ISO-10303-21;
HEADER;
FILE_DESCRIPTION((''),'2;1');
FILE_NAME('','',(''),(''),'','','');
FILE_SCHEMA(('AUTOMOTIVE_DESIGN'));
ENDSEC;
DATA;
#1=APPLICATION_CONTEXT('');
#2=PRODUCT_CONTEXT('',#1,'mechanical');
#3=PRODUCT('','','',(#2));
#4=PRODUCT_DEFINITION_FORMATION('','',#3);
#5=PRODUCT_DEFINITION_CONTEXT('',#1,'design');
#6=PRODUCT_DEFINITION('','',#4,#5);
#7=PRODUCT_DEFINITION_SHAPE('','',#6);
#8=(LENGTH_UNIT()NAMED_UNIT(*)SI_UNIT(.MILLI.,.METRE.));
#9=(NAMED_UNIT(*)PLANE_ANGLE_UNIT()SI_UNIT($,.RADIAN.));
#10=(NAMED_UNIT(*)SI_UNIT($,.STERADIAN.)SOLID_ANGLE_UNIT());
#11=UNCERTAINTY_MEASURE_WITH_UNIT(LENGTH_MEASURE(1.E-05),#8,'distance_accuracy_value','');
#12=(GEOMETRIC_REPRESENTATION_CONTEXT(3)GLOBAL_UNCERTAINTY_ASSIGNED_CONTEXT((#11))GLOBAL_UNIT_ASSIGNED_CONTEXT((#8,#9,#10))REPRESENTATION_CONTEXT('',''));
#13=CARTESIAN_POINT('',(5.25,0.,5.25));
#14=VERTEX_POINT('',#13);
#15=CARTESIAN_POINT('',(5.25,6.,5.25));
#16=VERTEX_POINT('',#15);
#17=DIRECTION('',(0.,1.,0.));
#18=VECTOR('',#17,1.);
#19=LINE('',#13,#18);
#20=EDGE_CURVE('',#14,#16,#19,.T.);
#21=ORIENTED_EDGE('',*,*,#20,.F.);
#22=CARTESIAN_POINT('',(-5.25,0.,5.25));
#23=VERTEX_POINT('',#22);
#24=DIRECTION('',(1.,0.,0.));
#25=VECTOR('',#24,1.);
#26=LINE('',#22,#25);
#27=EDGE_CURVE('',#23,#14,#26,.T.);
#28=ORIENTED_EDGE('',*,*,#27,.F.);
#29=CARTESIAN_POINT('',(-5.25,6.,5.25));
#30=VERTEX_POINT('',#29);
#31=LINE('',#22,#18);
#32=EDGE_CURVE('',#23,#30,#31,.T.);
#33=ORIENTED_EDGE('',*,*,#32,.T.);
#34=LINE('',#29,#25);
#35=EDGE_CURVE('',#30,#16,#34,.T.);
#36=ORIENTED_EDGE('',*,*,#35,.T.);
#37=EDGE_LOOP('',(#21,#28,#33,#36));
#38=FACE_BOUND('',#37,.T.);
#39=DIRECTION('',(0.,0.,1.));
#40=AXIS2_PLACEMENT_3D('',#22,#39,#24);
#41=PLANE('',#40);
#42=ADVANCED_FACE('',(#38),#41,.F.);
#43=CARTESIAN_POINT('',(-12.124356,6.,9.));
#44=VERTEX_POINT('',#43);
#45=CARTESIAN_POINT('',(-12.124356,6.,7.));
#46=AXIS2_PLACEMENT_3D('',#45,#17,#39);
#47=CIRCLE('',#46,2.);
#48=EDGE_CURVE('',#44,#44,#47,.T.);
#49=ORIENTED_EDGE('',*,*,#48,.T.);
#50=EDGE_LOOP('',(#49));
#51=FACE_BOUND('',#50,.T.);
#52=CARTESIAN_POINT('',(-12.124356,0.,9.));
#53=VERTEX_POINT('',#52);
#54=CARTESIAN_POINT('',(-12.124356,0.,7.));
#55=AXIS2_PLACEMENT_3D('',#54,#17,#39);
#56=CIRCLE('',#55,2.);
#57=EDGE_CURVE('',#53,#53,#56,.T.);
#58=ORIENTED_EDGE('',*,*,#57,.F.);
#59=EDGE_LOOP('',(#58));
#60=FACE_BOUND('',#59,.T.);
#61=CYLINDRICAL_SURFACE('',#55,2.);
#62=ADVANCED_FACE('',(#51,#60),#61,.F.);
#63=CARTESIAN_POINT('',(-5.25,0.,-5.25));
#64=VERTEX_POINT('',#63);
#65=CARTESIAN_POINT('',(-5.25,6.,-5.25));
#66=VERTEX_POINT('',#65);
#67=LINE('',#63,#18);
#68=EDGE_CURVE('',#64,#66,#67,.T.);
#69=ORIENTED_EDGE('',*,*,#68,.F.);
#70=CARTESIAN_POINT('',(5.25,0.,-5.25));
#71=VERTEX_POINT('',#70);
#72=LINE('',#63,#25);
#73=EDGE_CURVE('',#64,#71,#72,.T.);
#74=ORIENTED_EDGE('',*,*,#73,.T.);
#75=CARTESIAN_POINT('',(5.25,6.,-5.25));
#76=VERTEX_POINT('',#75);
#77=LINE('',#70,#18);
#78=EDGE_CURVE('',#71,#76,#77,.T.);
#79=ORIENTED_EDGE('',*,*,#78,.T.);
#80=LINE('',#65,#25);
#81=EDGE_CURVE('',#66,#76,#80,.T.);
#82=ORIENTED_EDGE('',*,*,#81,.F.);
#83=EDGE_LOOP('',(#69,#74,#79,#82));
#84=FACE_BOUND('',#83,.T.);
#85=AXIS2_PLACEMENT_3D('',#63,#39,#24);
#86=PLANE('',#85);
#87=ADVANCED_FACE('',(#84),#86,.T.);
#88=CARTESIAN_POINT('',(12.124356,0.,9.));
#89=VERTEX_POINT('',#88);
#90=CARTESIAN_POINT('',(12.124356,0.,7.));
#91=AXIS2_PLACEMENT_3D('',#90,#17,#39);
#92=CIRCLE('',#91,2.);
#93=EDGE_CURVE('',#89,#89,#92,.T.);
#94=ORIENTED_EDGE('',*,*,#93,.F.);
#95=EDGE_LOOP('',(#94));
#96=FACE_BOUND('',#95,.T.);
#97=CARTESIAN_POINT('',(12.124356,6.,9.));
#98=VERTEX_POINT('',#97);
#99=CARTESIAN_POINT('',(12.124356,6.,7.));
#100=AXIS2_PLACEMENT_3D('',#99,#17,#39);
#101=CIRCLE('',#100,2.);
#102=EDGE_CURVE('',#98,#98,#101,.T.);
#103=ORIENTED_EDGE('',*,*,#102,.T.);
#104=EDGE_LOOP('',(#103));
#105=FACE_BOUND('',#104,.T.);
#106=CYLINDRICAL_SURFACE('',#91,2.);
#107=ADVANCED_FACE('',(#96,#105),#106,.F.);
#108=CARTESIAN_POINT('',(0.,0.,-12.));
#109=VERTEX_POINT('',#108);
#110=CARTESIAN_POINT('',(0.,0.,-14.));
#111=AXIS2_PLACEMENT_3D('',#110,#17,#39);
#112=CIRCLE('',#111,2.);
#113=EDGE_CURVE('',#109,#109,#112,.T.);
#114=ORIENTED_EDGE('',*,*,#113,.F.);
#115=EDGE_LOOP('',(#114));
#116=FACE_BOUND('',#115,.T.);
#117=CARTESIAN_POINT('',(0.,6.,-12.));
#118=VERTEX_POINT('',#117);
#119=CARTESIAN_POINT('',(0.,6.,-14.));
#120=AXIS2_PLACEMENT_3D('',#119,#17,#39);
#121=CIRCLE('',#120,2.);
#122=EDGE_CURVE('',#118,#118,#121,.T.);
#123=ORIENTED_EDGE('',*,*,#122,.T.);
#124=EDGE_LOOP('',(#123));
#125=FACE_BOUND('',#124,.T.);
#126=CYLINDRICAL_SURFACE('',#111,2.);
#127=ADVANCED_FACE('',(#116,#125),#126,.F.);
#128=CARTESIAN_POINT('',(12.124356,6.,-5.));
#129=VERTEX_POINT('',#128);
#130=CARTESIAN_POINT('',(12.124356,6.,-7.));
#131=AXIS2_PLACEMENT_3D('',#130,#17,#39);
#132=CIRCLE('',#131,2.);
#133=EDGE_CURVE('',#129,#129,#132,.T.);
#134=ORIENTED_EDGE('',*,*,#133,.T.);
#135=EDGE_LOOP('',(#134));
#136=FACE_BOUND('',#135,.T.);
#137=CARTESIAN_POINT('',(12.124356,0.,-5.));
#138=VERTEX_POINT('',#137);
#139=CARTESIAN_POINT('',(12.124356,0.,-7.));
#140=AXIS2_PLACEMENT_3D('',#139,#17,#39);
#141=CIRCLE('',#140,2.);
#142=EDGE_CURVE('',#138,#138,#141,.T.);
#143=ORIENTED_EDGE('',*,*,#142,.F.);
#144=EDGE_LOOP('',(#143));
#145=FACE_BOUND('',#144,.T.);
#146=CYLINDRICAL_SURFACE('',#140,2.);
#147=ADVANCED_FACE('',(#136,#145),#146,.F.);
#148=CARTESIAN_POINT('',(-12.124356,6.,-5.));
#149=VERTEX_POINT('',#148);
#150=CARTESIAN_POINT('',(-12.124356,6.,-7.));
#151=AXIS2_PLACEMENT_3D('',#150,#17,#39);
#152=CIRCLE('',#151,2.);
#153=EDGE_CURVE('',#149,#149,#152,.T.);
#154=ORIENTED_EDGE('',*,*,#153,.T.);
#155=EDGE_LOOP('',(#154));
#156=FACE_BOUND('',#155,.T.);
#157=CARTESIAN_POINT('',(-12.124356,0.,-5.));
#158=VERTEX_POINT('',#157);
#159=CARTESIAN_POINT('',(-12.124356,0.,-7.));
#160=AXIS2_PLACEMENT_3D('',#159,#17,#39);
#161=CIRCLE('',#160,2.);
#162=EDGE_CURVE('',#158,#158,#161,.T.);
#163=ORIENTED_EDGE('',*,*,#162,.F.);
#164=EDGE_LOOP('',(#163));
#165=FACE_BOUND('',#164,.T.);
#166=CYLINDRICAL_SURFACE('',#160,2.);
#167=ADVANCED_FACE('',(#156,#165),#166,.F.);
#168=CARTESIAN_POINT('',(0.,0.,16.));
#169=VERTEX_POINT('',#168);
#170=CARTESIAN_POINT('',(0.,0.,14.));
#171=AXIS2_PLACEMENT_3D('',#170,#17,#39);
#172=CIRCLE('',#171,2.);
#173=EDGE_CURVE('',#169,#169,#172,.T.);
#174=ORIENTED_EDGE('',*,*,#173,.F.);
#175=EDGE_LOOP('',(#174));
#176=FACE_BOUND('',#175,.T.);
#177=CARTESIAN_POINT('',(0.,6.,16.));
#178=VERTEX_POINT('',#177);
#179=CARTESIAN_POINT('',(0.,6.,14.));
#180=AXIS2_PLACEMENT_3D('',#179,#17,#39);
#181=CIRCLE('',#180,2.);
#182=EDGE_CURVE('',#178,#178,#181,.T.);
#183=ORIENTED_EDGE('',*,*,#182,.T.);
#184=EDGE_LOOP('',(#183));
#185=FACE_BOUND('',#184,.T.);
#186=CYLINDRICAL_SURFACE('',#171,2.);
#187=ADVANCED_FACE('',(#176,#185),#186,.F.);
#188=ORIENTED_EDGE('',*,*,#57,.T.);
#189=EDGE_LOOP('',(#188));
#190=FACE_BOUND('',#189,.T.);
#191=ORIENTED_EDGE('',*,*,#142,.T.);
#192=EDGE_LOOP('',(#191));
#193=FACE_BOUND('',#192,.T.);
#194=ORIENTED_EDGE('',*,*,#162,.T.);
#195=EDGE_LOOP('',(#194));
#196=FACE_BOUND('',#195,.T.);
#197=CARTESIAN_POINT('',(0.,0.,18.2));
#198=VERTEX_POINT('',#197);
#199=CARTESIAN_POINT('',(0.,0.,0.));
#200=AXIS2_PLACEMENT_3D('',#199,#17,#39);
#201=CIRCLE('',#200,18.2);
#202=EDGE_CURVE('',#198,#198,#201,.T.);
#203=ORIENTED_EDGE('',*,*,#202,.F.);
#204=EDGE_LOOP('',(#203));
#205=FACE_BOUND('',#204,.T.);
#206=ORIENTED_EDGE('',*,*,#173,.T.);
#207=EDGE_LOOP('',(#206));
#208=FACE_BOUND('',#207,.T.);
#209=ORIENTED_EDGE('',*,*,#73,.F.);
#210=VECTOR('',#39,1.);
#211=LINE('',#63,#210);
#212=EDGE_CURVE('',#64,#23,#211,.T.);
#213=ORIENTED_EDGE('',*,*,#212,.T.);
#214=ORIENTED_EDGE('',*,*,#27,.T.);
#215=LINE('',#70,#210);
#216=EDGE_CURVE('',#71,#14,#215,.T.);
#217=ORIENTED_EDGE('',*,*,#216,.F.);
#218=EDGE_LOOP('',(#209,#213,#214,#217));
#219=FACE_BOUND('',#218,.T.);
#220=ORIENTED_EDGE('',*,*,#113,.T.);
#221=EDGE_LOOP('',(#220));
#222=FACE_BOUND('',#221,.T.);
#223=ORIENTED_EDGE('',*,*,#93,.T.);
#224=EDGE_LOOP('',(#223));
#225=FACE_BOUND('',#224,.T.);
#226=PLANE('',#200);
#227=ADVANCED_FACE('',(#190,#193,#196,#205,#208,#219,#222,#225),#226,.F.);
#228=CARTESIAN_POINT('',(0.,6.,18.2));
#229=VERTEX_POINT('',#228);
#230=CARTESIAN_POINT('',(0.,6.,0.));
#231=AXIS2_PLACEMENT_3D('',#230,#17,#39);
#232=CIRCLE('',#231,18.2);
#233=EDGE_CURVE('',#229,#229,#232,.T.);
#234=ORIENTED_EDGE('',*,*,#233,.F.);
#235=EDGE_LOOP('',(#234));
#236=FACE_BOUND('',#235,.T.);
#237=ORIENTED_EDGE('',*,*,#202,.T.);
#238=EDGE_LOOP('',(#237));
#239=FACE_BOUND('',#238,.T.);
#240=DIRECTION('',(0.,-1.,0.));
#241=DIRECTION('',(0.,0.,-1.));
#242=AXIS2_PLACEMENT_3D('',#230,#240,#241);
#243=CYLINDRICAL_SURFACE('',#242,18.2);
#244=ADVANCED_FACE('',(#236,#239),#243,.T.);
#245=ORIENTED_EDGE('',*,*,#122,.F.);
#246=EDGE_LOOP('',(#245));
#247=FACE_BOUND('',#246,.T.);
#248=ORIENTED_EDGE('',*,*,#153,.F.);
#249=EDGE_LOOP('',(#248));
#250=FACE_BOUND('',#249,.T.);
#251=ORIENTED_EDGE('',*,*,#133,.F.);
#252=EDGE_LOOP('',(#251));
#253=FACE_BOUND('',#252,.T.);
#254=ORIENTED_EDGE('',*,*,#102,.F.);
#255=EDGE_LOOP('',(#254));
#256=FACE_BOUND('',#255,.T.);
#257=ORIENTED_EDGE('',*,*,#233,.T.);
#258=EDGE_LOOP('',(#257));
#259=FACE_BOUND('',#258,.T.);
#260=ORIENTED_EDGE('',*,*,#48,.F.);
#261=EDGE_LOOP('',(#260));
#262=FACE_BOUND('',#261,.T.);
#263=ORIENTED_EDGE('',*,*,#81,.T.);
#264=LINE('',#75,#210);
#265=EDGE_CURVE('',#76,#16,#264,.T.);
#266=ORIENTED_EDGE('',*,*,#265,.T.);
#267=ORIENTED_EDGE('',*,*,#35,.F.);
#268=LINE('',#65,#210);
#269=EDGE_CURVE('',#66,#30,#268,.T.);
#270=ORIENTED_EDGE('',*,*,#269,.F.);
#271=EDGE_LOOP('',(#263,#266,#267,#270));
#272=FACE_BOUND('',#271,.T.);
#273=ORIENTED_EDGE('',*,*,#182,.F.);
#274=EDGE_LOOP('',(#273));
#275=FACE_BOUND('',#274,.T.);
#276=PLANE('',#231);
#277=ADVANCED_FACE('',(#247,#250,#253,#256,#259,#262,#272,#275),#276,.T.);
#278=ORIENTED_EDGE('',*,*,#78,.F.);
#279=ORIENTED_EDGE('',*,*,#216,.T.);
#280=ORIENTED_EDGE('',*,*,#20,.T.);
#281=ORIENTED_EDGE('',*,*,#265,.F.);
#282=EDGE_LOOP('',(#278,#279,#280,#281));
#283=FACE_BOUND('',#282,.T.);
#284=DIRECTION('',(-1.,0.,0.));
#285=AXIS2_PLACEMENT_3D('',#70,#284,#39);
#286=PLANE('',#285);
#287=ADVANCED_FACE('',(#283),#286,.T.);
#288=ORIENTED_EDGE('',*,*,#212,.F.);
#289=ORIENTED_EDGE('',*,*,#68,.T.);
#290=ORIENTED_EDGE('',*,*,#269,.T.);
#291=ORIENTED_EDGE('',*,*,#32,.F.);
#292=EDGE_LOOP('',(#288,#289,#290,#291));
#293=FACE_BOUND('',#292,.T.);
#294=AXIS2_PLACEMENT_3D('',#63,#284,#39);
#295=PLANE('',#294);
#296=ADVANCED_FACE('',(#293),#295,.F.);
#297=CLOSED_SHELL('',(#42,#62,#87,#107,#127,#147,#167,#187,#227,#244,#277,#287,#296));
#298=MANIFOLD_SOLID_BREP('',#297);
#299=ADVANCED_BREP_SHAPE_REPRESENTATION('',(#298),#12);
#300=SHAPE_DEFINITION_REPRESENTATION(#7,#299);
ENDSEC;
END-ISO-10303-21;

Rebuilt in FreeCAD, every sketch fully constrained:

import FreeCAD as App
import Part
import Sketcher

V = App.Vector
Q = App.Units.Quantity


def add_polygon(sketch, points):
    """Adds a closed chain of lines whose ends are joined by coincident constraints."""
    first, n = sketch.GeometryCount, len(points)
    for a, b in zip(points, points[1:] + points[:1]):
        sketch.addGeometry(Part.LineSegment(App.Vector(*a, 0), App.Vector(*b, 0)), False)
    for i in range(n):
        sketch.addConstraint(Sketcher.Constraint("Coincident", first + i, 2, first + (i + 1) % n, 1))

doc = App.newDocument("Part")
body = doc.addObject("PartDesign::Body", "Body")

# Sketch on XZ plane
sketch1 = body.newObject("Sketcher::SketchObject", "Sketch")
sketch1.AttachmentSupport = (doc.getObject("XZ_Plane"), [""])
sketch1.MapMode = "FlatFace"
sketch1.addGeometry(Part.Circle(V(0, 0, 0), V(0, 0, 1), 18), False)
sketch1.addConstraint(Sketcher.Constraint("Coincident", 0, 3, -1, 1))
sketch1.addConstraint(Sketcher.Constraint("Diameter", 0, Q("36.4 mm")))
pad1 = body.newObject("PartDesign::Pad", "Pad")
pad1.Profile = sketch1
pad1.Length = 6
pad1.Reversed = True

# Sketch on XZ plane
sketch2 = body.newObject("Sketcher::SketchObject", "Sketch001")
sketch2.AttachmentSupport = (doc.getObject("XZ_Plane"), [""])
sketch2.MapMode = "FlatFace"
sketch2.AttachmentOffset = App.Placement(V(0, 0, -6), App.Rotation())
sketch2.addGeometry(Part.Circle(V(0, -14, 0), V(0, 0, 1), 2), False)
sketch2.addGeometry(Part.Circle(V(12.1, -7, 0), V(0, 0, 1), 2), False)
sketch2.addGeometry(Part.Circle(V(12.1, 7, 0), V(0, 0, 1), 2), False)
sketch2.addGeometry(Part.Circle(V(0, 14, 0), V(0, 0, 1), 2), False)
sketch2.addGeometry(Part.Circle(V(-12.1, 7, 0), V(0, 0, 1), 2), False)
sketch2.addGeometry(Part.Circle(V(-12.1, -7, 0), V(0, 0, 1), 2), False)
sketch2.addConstraint(Sketcher.Constraint("Equal", 0, 1))
sketch2.addConstraint(Sketcher.Constraint("Equal", 1, 2))
sketch2.addConstraint(Sketcher.Constraint("Equal", 2, 3))
sketch2.addConstraint(Sketcher.Constraint("Equal", 3, 4))
sketch2.addConstraint(Sketcher.Constraint("Equal", 4, 5))
sketch2.addConstraint(Sketcher.Constraint("Symmetric", 0, 3, 3, 3, -1, 1))
sketch2.addConstraint(Sketcher.Constraint("Symmetric", 1, 3, 4, 3, -1, 1))
sketch2.addConstraint(Sketcher.Constraint("Symmetric", 2, 3, 5, 3, -1, 1))
sketch2.addConstraint(Sketcher.Constraint("Symmetric", 2, 3, 4, 3, -2))
sketch2.addConstraint(Sketcher.Constraint("PointOnObject", 0, 3, -2))
sketch2.addConstraint(Sketcher.Constraint("Diameter", 0, Q("4 mm")))
sketch2.addConstraint(Sketcher.Constraint("DistanceY", 0, 3, -1, 1, Q("14 mm")))
sketch2.addConstraint(Sketcher.Constraint("DistanceY", 1, 3, -1, 1, Q("7 mm")))
sketch2.addConstraint(Sketcher.Constraint("DistanceX", 4, 3, 2, 3, Q("24.248711 mm")))
pocket1 = body.newObject("PartDesign::Pocket", "Pocket")
pocket1.Profile = sketch2
pocket1.Length = 6
pocket1.Reversed = True

# Sketch on XZ plane
sketch3 = body.newObject("Sketcher::SketchObject", "Sketch002")
sketch3.AttachmentSupport = (doc.getObject("XZ_Plane"), [""])
sketch3.MapMode = "FlatFace"
sketch3.AttachmentOffset = App.Placement(V(0, 0, -6), App.Rotation())
add_polygon(sketch3, [(-5, -5), (-5, 5), (5, 5), (5, -5)])  # lines 0-3
sketch3.addConstraint(Sketcher.Constraint("Vertical", 0))
sketch3.addConstraint(Sketcher.Constraint("Horizontal", 1))
sketch3.addConstraint(Sketcher.Constraint("Vertical", 2))
sketch3.addConstraint(Sketcher.Constraint("Horizontal", 3))
sketch3.addConstraint(Sketcher.Constraint("Symmetric", 0, 2, 2, 2, -1, 1))
sketch3.addConstraint(Sketcher.Constraint("Equal", 3, 0))
sketch3.addConstraint(Sketcher.Constraint("DistanceX", 1, 1, 1, 2, Q("10.5 mm")))
pocket2 = body.newObject("PartDesign::Pocket", "Pocket001")
pocket2.Profile = sketch3
pocket2.Length = 6
pocket2.Reversed = True

doc.recompute()
